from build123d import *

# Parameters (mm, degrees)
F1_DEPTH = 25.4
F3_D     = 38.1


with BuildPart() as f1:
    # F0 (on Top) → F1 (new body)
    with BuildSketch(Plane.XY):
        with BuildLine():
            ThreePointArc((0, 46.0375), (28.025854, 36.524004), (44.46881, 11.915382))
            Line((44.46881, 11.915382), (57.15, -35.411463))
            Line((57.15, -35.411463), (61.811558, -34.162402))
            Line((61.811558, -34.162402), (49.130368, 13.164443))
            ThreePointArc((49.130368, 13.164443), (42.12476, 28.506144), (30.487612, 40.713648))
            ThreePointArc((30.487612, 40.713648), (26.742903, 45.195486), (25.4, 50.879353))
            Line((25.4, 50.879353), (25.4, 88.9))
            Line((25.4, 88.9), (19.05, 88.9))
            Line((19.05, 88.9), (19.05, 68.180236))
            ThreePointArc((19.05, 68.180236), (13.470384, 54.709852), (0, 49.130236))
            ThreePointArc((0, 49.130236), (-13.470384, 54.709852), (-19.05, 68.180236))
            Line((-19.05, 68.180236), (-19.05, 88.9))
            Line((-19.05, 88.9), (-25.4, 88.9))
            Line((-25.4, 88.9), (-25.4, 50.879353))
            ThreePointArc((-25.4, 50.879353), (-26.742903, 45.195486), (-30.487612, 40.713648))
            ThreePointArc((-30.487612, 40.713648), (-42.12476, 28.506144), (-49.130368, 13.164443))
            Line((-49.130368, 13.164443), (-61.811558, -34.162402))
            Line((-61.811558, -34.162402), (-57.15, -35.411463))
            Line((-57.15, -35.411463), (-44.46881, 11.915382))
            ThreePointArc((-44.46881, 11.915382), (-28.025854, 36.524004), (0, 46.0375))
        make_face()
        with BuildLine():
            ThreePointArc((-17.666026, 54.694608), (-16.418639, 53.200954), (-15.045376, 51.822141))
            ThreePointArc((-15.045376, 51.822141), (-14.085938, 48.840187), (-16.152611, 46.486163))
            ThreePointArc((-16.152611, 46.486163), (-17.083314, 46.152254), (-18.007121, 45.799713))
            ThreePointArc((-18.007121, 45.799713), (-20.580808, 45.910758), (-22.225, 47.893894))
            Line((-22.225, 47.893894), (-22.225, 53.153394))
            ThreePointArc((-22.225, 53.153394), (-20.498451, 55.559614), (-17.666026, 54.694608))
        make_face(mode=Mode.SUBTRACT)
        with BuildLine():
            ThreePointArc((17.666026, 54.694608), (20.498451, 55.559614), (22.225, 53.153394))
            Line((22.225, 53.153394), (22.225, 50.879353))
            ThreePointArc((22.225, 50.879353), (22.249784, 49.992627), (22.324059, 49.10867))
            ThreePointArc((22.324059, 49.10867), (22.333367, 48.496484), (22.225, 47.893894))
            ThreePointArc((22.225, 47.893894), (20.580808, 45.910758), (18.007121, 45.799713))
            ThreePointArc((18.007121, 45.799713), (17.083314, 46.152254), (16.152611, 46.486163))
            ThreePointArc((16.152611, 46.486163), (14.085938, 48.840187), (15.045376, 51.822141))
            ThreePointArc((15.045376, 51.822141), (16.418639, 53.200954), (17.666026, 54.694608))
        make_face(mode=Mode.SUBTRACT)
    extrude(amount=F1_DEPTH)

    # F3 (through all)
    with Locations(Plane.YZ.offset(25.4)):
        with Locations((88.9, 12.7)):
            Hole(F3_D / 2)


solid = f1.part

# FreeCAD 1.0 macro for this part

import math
import FreeCAD as App
import Part
import Sketcher

V = App.Vector
Q = App.Units.Quantity

doc = App.newDocument("Part")
body = doc.addObject("PartDesign::Body", "Body")

sketch1 = body.newObject("Sketcher::SketchObject", "Sketch")
sketch1.AttachmentSupport = (doc.getObject("XY_Plane"), [""])
sketch1.MapMode = "FlatFace"
sketch1.addGeometry([
    Part.ArcOfCircle(Part.Circle(V(-0.000001, -0.000002, 0), V(0, 0, 1), 46.037502), math.radians(15.000002), math.radians(89.999998)),
    Part.LineSegment(V(44.46881, 11.915382, 0), V(57.15, -35.411463, 0)),
    Part.LineSegment(V(57.15, -35.411463, 0), V(61.811558, -34.162402, 0)),
    Part.LineSegment(V(61.811558, -34.162402, 0), V(49.130368, 13.164443, 0)),
    Part.ArcOfCircle(Part.Circle(V(0.000005, 0.000003, 0), V(0, 0, 1), 50.863495), math.radians(14.999999), math.radians(53.173022)),
    Part.ArcOfCircle(Part.Circle(V(38.100003, 50.879354, 0), V(0, 0, 1), 12.700003), math.radians(-179.999995), math.radians(-126.82699)),
    Part.LineSegment(V(25.4, 50.879353, 0), V(25.4, 88.9, 0)),
    Part.LineSegment(V(25.4, 88.9, 0), V(19.05, 88.9, 0)),
    Part.LineSegment(V(19.05, 88.9, 0), V(19.05, 68.180236, 0)),
    Part.ArcOfCircle(Part.Circle(V(-0.000001, 68.180237, 0), V(0, 0, 1), 19.050001), math.radians(-89.999998), math.radians(-0.000002)),
    Part.ArcOfCircle(Part.Circle(V(0.000001, 68.180237, 0), V(0, 0, 1), 19.050001), math.radians(-179.999998), math.radians(-90.000002)),
    Part.LineSegment(V(-19.05, 68.180236, 0), V(-19.05, 88.9, 0)),
    Part.LineSegment(V(-19.05, 88.9, 0), V(-25.4, 88.9, 0)),
    Part.LineSegment(V(-25.4, 88.9, 0), V(-25.4, 50.879353, 0)),
    Part.ArcOfCircle(Part.Circle(V(-38.100003, 50.879354, 0), V(0, 0, 1), 12.700003), math.radians(-53.17301), math.radians(-0.000005)),
    Part.ArcOfCircle(Part.Circle(V(-0.000005, 0.000003, 0), V(0, 0, 1), 50.863495), math.radians(126.826978), math.radians(165.000001)),
    Part.LineSegment(V(-49.130368, 13.164443, 0), V(-61.811558, -34.162402, 0)),
    Part.LineSegment(V(-61.811558, -34.162402, 0), V(-57.15, -35.411463, 0)),
    Part.LineSegment(V(-57.15, -35.411463, 0), V(-44.46881, 11.915382, 0)),
    Part.ArcOfCircle(Part.Circle(V(0.000001, -0.000002, 0), V(0, 0, 1), 46.037502), math.radians(90.000002), math.radians(164.999998)),
    Part.ArcOfCircle(Part.Circle(V(-19.685, 53.153394, 0), V(0, 0, 1), 2.54), math.radians(37.35685), math.radians(179.999991)),
    Part.ArcOfCircle(Part.Circle(V(0.00012, 68.18035, 0), V(0, 0, 1), 22.225165), math.radians(-142.643103), math.radians(-132.60636)),
    Part.ArcOfCircle(Part.Circle(V(-17.194714, 49.48527, 0), V(0, 0, 1), 3.174999), math.radians(-70.839135), math.radians(47.39369)),
    Part.ArcOfCircle(Part.Circle(V(-0.000182, 0.000546, 0), V(0, 0, 1), 49.211925), math.radians(109.160885), math.radians(111.463351)),
    Part.ArcOfCircle(Part.Circle(V(-19.168871, 48.754534, 0), V(0, 0, 1), 3.175), math.radians(-164.272195), math.radians(-68.536691)),
    Part.LineSegment(V(-22.225, 47.893894, 0), V(-22.225, 53.153394, 0)),
    Part.ArcOfCircle(Part.Circle(V(-0.00012, 68.18035, 0), V(0, 0, 1), 22.225165), math.radians(-47.39364), math.radians(-37.356897)),
    Part.ArcOfCircle(Part.Circle(V(19.685, 53.153394, 0), V(0, 0, 1), 2.54), math.radians(0.000009), math.radians(142.64315)),
    Part.LineSegment(V(22.225, 53.153394, 0), V(22.225, 50.879353, 0)),
    Part.ArcOfCircle(Part.Circle(V(38.099972, 50.879349, 0), V(0, 0, 1), 15.874972), math.radians(179.999987), math.radians(186.404042)),
    Part.ArcOfCircle(Part.Circle(V(19.168872, 48.754533, 0), V(0, 0, 1), 3.174999), math.radians(-15.727799), math.radians(6.404052)),
    Part.ArcOfCircle(Part.Circle(V(19.168871, 48.754534, 0), V(0, 0, 1), 3.175), math.radians(-111.463309), math.radians(-15.727805)),
    Part.ArcOfCircle(Part.Circle(V(0.000182, 0.000546, 0), V(0, 0, 1), 49.211925), math.radians(68.536649), math.radians(70.839115)),
    Part.ArcOfCircle(Part.Circle(V(17.194714, 49.48527, 0), V(0, 0, 1), 3.174999), math.radians(132.60631), math.radians(250.839135)),
], False)
sketch1.addConstraint([
    Sketcher.Constraint("Coincident", 0, 1, 1, 1),
    Sketcher.Constraint("Coincident", 1, 2, 2, 1),
    Sketcher.Constraint("Coincident", 2, 2, 3, 1),
    Sketcher.Constraint("Coincident", 3, 2, 4, 1),
    Sketcher.Constraint("Coincident", 4, 2, 5, 2),
    Sketcher.Constraint("Coincident", 5, 1, 6, 1),
    Sketcher.Constraint("Coincident", 6, 2, 7, 1),
    Sketcher.Constraint("Coincident", 7, 2, 8, 1),
    Sketcher.Constraint("Coincident", 8, 2, 9, 2),
    Sketcher.Constraint("Coincident", 9, 1, 10, 2),
    Sketcher.Constraint("Coincident", 10, 1, 11, 1),
    Sketcher.Constraint("Coincident", 11, 2, 12, 1),
    Sketcher.Constraint("Coincident", 12, 2, 13, 1),
    Sketcher.Constraint("Coincident", 13, 2, 14, 2),
    Sketcher.Constraint("Coincident", 14, 1, 15, 1),
    Sketcher.Constraint("Coincident", 15, 2, 16, 1),
    Sketcher.Constraint("Coincident", 16, 2, 17, 1),
    Sketcher.Constraint("Coincident", 17, 2, 18, 1),
    Sketcher.Constraint("Coincident", 18, 2, 19, 2),
    Sketcher.Constraint("Coincident", 19, 1, 0, 2),
    Sketcher.Constraint("Coincident", 20, 1, 21, 1),
    Sketcher.Constraint("Coincident", 21, 2, 22, 2),
    Sketcher.Constraint("Coincident", 22, 1, 23, 1),
    Sketcher.Constraint("Coincident", 23, 2, 24, 2),
    Sketcher.Constraint("Coincident", 24, 1, 25, 1),
    Sketcher.Constraint("Coincident", 25, 2, 20, 2),
    Sketcher.Constraint("Coincident", 26, 2, 27, 2),
    Sketcher.Constraint("Coincident", 27, 1, 28, 1),
    Sketcher.Constraint("Coincident", 28, 2, 29, 1),
    Sketcher.Constraint("Coincident", 29, 2, 30, 2),
    Sketcher.Constraint("Coincident", 30, 1, 31, 2),
    Sketcher.Constraint("Coincident", 31, 1, 32, 1),
    Sketcher.Constraint("Coincident", 32, 2, 33, 2),
    Sketcher.Constraint("Coincident", 33, 1, 26, 1),
    Sketcher.Constraint("Vertical", 6),
    Sketcher.Constraint("Horizontal", 7),
    Sketcher.Constraint("Vertical", 8),
    Sketcher.Constraint("Vertical", 11),
    Sketcher.Constraint("Horizontal", 12),
    Sketcher.Constraint("Vertical", 13),
    Sketcher.Constraint("Vertical", 25),
    Sketcher.Constraint("Vertical", 28),
    Sketcher.Constraint("Coincident", 0, 3, -1, 1),
    Sketcher.Constraint("Coincident", 4, 3, -1, 1),
    Sketcher.Constraint("Coincident", 15, 3, -1, 1),
    Sketcher.Constraint("Coincident", 19, 3, -1, 1),
    Sketcher.Constraint("Coincident", 10, 3, 9, 3),
    Sketcher.Constraint("Coincident", 31, 3, 30, 3),
    Sketcher.Constraint("PointOnObject", 9, 3, -2),
    Sketcher.Constraint("PointOnObject", 9, 1, -2),
    Sketcher.Constraint("PointOnObject", 19, 1, -2),
    Sketcher.Constraint("Radius", 5, Q("0.5000001 in")),
    Sketcher.Constraint("Radius", 14, Q("0.5000001 in")),
    Sketcher.Constraint("Radius", 20, Q("0.1 in")),
    Sketcher.Constraint("Radius", 27, Q("0.1 in")),
    Sketcher.Constraint("Radius", 9, Q("0.75 in")),
    Sketcher.Constraint("DistanceX", -1, 1, 5, 1, Q("1 in")),
    Sketcher.Constraint("DistanceX", 12, 2, -1, 1, Q("1 in")),
    Sketcher.Constraint("Radius", 0, Q("1.8125001 in")),
    Sketcher.Constraint("Radius", 22, Q("0.125 in")),
    Sketcher.Constraint("Radius", 24, Q("0.125 in")),
    Sketcher.Constraint("Radius", 30, Q("0.125 in")),
    Sketcher.Constraint("Radius", 33, Q("0.125 in")),
    Sketcher.Constraint("DistanceY", -1, 1, 6, 2, Q("3.5 in")),
    Sketcher.Constraint("DistanceY", -1, 1, 11, 2, Q("3.5 in")),
    Sketcher.Constraint("Distance", 2, Q("0.19 in")),
    Sketcher.Constraint("Distance", 17, Q("0.19 in")),
    Sketcher.Constraint("DistanceX", -1, 1, 1, 2, Q("2.25 in")),
    Sketcher.Constraint("DistanceX", 17, 2, -1, 1, Q("2.25 in")),
    Sketcher.Constraint("DistanceX", 20, 3, -1, 1, Q("0.775 in")),
    Sketcher.Constraint("DistanceX", -1, 1, 27, 3, Q("0.775 in")),
    Sketcher.Constraint("DistanceX", -1, 1, 30, 1, Q("0.875 in")),
    Sketcher.Constraint("DistanceY", 25, 1, 25, 2, Q("5.2595 mm")),
    Sketcher.Constraint("DistanceX", -1, 1, 29, 2, Q("0.8789 in")),
    Sketcher.Constraint("Radius", 4, Q("50.863495 mm")),
    Sketcher.Constraint("Radius", 15, Q("50.863495 mm")),
    Sketcher.Constraint("Radius", 21, Q("22.225165 mm")),
    Sketcher.Constraint("Radius", 23, Q("49.211925 mm")),
    Sketcher.Constraint("Radius", 26, Q("22.225165 mm")),
    Sketcher.Constraint("Radius", 29, Q("15.874972 mm")),
    Sketcher.Constraint("Radius", 32, Q("49.211925 mm")),
    Sketcher.Constraint("DistanceY", 28, 2, 28, 1, Q("2.274041 mm")),
    Sketcher.Constraint("DistanceY", 29, 3, 21, 3, Q("17.301001 mm")),
    Sketcher.Constraint("DistanceX", 30, 3, 29, 3, Q("18.931101 mm")),
    Sketcher.Constraint("DistanceY", 2, 2, 19, 3, Q("34.1624 mm")),
    Sketcher.Constraint("DistanceY", 4, 2, 29, 3, Q("10.165701 mm")),
    Sketcher.Constraint("DistanceY", 16, 2, 0, 3, Q("34.1624 mm")),
    Sketcher.Constraint("DistanceY", 24, 1, 20, 3, Q("5.2595 mm")),
    Sketcher.Constraint("DistanceY", 6, 1, 6, 2, Q("38.020647 mm")),
    Sketcher.Constraint("DistanceY", 8, 2, 8, 1, Q("20.719764 mm")),
    Sketcher.Constraint("DistanceY", 11, 1, 11, 2, Q("20.719764 mm")),
    Sketcher.Constraint("DistanceY", 13, 2, 13, 1, Q("38.020647 mm")),
    Sketcher.Constraint("DistanceX", -1, 1, 21, 3, Q("0.00012 mm")),
    Sketcher.Constraint("DistanceY", -1, 1, 21, 3, Q("68.18035 mm")),
    Sketcher.Constraint("DistanceY", -1, 1, 22, 3, Q("49.48527 mm")),
    Sketcher.Constraint("DistanceX", 23, 3, -1, 1, Q("0.000182 mm")),
    Sketcher.Constraint("DistanceX", 26, 3, -1, 1, Q("0.00012 mm")),
    Sketcher.Constraint("DistanceY", -1, 1, 26, 3, Q("68.18035 mm")),
    Sketcher.Constraint("DistanceX", -1, 1, 32, 3, Q("0.000182 mm")),
    Sketcher.Constraint("DistanceX", -1, 1, 0, 1, Q("44.46881 mm")),
    Sketcher.Constraint("DistanceY", -1, 1, 14, 1, Q("40.713648 mm")),
    Sketcher.Constraint("DistanceX", 18, 2, -1, 1, Q("44.46881 mm")),
    Sketcher.Constraint("DistanceY", -1, 1, 20, 1, Q("54.694608 mm")),
    Sketcher.Constraint("DistanceY", -1, 1, 21, 2, Q("51.822141 mm")),
    Sketcher.Constraint("DistanceX", 22, 1, -1, 1, Q("16.152611 mm")),
    Sketcher.Constraint("DistanceX", 23, 2, -1, 1, Q("18.007121 mm")),
    Sketcher.Constraint("DistanceX", -1, 1, 31, 1, Q("18.007121 mm")),
    Sketcher.Constraint("DistanceX", -1, 1, 32, 2, Q("16.152611 mm")),
    Sketcher.Constraint("DistanceY", -1, 1, 33, 1, Q("51.822141 mm")),
    Sketcher.Constraint("DistanceY", 0, 3, 9, 3, Q("68.180238 mm")),
    Sketcher.Constraint("DistanceY", 1, 2, 19, 3, Q("35.411461 mm")),
    Sketcher.Constraint("DistanceX", 0, 1, 3, 2, Q("4.661558 mm")),
    Sketcher.Constraint("DistanceY", 15, 2, 14, 3, Q("37.714911 mm")),
    Sketcher.Constraint("DistanceX", 16, 2, 15, 2, Q("12.68119 mm")),
    Sketcher.Constraint("DistanceX", 33, 3, 26, 2, Q("0.471312 mm")),
    Sketcher.Constraint("DistanceY", 5, 1, 27, 1, Q("2.274041 mm")),
])
pad1 = body.newObject("PartDesign::Pad", "Pad")
pad1.Profile = sketch1
pad1.Length = Q("1 in")

sketch2 = body.newObject("Sketcher::SketchObject", "Sketch001")
sketch2.AttachmentSupport = (doc.getObject("YZ_Plane"), [""])
sketch2.MapMode = "FlatFace"
sketch2.AttachmentOffset = App.Placement(V(0, 0, 1 * 25.4), App.Rotation())
sketch2.addGeometry(Part.Circle(V(88.9, 12.7, 0), V(0, 0, 1), 19.05), False)
sketch2.addConstraint([
    Sketcher.Constraint("Diameter", 0, Q("1.5 in")),
    Sketcher.Constraint("DistanceX", -1, 1, 0, 3, Q("3.5 in")),
    Sketcher.Constraint("DistanceY", -1, 1, 0, 3, Q("0.5 in")),
])
doc.recompute()
hole = body.newObject("PartDesign::Hole", "Hole")
hole.Profile = sketch2
hole.ThreadType = "None"
hole.Diameter = Q("1.5 in")
hole.DepthType = "ThroughAll"

doc.recompute()
